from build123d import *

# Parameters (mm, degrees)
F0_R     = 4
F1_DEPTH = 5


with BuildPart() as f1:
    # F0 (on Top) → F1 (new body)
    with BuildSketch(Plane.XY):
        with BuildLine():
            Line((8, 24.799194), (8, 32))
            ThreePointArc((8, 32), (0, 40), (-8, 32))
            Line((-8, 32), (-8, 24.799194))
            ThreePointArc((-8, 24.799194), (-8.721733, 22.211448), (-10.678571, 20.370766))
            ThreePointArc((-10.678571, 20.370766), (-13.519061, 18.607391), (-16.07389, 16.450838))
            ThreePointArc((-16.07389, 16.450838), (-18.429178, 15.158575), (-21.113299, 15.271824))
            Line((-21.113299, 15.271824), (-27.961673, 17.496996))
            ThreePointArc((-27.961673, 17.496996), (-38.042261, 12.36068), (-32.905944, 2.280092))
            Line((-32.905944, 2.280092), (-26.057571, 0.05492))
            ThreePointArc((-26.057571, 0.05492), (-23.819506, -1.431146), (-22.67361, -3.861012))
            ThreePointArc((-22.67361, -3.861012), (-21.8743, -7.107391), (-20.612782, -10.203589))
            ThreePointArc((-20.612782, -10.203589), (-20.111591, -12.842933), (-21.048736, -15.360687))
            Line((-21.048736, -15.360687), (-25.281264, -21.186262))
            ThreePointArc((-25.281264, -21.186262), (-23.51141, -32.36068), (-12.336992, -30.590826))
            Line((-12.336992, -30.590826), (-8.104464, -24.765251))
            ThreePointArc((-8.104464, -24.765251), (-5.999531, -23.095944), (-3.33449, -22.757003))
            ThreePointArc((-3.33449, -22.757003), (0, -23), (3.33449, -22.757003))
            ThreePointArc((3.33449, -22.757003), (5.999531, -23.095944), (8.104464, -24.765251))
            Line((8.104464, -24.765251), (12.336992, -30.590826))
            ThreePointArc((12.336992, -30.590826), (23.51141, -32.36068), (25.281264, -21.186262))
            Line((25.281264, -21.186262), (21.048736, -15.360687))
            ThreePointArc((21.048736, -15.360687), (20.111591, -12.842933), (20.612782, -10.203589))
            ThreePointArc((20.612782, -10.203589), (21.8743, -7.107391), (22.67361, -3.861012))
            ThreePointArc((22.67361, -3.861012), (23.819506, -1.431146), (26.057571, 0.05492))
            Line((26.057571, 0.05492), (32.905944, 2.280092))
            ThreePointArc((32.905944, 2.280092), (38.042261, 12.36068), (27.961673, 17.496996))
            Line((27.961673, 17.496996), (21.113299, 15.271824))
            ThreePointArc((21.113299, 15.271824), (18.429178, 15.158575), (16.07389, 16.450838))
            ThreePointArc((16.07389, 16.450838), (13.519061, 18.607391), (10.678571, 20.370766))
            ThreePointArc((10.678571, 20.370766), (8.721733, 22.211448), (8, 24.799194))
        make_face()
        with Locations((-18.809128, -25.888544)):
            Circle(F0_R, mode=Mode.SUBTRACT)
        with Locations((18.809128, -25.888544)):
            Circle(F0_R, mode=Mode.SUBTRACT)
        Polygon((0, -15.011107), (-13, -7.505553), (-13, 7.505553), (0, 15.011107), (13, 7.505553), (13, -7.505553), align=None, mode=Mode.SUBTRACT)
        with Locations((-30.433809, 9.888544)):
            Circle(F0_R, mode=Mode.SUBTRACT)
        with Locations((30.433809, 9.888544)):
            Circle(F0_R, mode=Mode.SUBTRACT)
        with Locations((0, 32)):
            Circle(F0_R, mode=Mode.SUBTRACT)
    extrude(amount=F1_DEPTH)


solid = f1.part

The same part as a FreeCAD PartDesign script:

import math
import FreeCAD as App
import Part
import Sketcher

doc = App.newDocument("Part")
params = doc.addObject("Spreadsheet::Sheet", "Params")
for row, (alias, value) in enumerate([
    ("sketch1_diameter", "8 mm"),
    ("sketch1_diameter2", "8 mm"),
    ("sketch1_diameter3", "8 mm"),
    ("sketch1_diameter4", "8 mm"),
    ("sketch1_diameter5", "8 mm"),
    ("pad1_length", "5 mm"),
], start=1):
    params.set(f"A{row}", alias)
    params.set(f"B{row}", "=" + value)
    params.setAlias(f"B{row}", alias)

body = doc.addObject("PartDesign::Body", "Body")

sketch1 = body.newObject("Sketcher::SketchObject", "Sketch")
sketch1.AttachmentSupport = (doc.getObject("XY_Plane"), [""])
sketch1.MapMode = "FlatFace"
sketch1.addGeometry([
    Part.LineSegment(App.Vector(8, 24.799194, 0), App.Vector(8, 32, 0)),
    Part.ArcOfCircle(Part.Circle(App.Vector(0, 32, 0), App.Vector(0, 0, 1), 8), math.radians(0), math.radians(180)),
    Part.LineSegment(App.Vector(-8, 32, 0), App.Vector(-8, 24.799194, 0)),
    Part.ArcOfCircle(Part.Circle(App.Vector(-13.000004, 24.799195, 0), App.Vector(0, 0, 1), 5.000004), math.radians(-62.335964), math.radians(-0.000017)),
    Part.ArcOfCircle(Part.Circle(App.Vector(-0.000016, 0.000019, 0), App.Vector(0, 0, 1), 22.999976), math.radians(117.66399), math.radians(134.336)),
    Part.ArcOfCircle(Part.Circle(App.Vector(-19.568214, 20.027104, 0), App.Vector(0, 0, 1), 4.999997), math.radians(-108.000015), math.radians(-45.66398)),
    Part.LineSegment(App.Vector(-21.113299, 15.271824, 0), App.Vector(-27.961673, 17.496996, 0)),
    Part.ArcOfCircle(Part.Circle(App.Vector(-30.433809, 9.888544, 0), App.Vector(0, 0, 1), 8), math.radians(71.999998), math.radians(252.000007)),
    Part.LineSegment(App.Vector(-32.905944, 2.280092, 0), App.Vector(-26.057571, 0.05492, 0)),
    Part.ArcOfCircle(Part.Circle(App.Vector(-27.602656, -4.700363, 0), App.Vector(0, 0, 1), 5.000001), math.radians(9.664013), math.radians(71.999999)),
    Part.ArcOfCircle(Part.Circle(App.Vector(0, -0.000001, 0), App.Vector(0, 0, 1), 23), math.radians(-170.335997), math.radians(-153.664006)),
    Part.ArcOfCircle(Part.Circle(App.Vector(-25.093819, -12.421761, 0), App.Vector(0, 0, 1), 4.999998), math.radians(-36.000011), math.radians(26.336018)),
    Part.LineSegment(App.Vector(-21.048736, -15.360687, 0), App.Vector(-25.281264, -21.186262, 0)),
    Part.ArcOfCircle(Part.Circle(App.Vector(-18.809128, -25.888544, 0), App.Vector(0, 0, 1), 8), math.radians(144), math.radians(324)),
    Part.LineSegment(App.Vector(-12.336992, -30.590826, 0), App.Vector(-8.104464, -24.765251, 0)),
    Part.ArcOfCircle(Part.Circle(App.Vector(-4.059381, -27.704174, 0), App.Vector(0, 0, 1), 4.999997), math.radians(81.663983), math.radians(144.000017)),
    Part.ArcOfCircle(Part.Circle(App.Vector(0, 0.000019, 0), App.Vector(0, 0, 1), 23.000019), math.radians(-98.335988), math.radians(-81.664012)),
    Part.ArcOfCircle(Part.Circle(App.Vector(4.059381, -27.704174, 0), App.Vector(0, 0, 1), 4.999997), math.radians(35.999983), math.radians(98.336017)),
    Part.LineSegment(App.Vector(8.104464, -24.765251, 0), App.Vector(12.336992, -30.590826, 0)),
    Part.ArcOfCircle(Part.Circle(App.Vector(18.809128, -25.888544, 0), App.Vector(0, 0, 1), 8), math.radians(-144), math.radians(36)),
    Part.LineSegment(App.Vector(25.281264, -21.186262, 0), App.Vector(21.048736, -15.360687, 0)),
    Part.ArcOfCircle(Part.Circle(App.Vector(25.093819, -12.421761, 0), App.Vector(0, 0, 1), 4.999998), math.radians(153.663982), math.radians(216.000011)),
    Part.ArcOfCircle(Part.Circle(App.Vector(0, -0.000001, 0), App.Vector(0, 0, 1), 23), math.radians(-26.335994), math.radians(-9.664003)),
    Part.ArcOfCircle(Part.Circle(App.Vector(27.602656, -4.700363, 0), App.Vector(0, 0, 1), 5.000001), math.radians(108.000001), math.radians(170.335987)),
    Part.LineSegment(App.Vector(26.057571, 0.05492, 0), App.Vector(32.905944, 2.280092, 0)),
    Part.ArcOfCircle(Part.Circle(App.Vector(30.433809, 9.888544, 0), App.Vector(0, 0, 1), 8), math.radians(-72.000007), math.radians(108.000002)),
    Part.LineSegment(App.Vector(27.961673, 17.496996, 0), App.Vector(21.113299, 15.271824, 0)),
    Part.ArcOfCircle(Part.Circle(App.Vector(19.568214, 20.027104, 0), App.Vector(0, 0, 1), 4.999997), math.radians(-134.33602), math.radians(-71.999985)),
    Part.ArcOfCircle(Part.Circle(App.Vector(0.000016, 0.000019, 0), App.Vector(0, 0, 1), 22.999976), math.radians(45.664), math.radians(62.33601)),
    Part.ArcOfCircle(Part.Circle(App.Vector(13.000004, 24.799195, 0), App.Vector(0, 0, 1), 5.000004), math.radians(-179.999983), math.radians(-117.664036)),
    Part.Circle(App.Vector(-18.809128, -25.888544, 0), App.Vector(0, 0, 1), 4),
    Part.Circle(App.Vector(18.809128, -25.888544, 0), App.Vector(0, 0, 1), 4),
    Part.LineSegment(App.Vector(13, -7.505553, 0), App.Vector(0, -15.011107, 0)),
    Part.LineSegment(App.Vector(0, -15.011107, 0), App.Vector(-13, -7.505553, 0)),
    Part.LineSegment(App.Vector(-13, -7.505553, 0), App.Vector(-13, 7.505553, 0)),
    Part.LineSegment(App.Vector(-13, 7.505553, 0), App.Vector(0, 15.011107, 0)),
    Part.LineSegment(App.Vector(0, 15.011107, 0), App.Vector(13, 7.505553, 0)),
    Part.LineSegment(App.Vector(13, 7.505553, 0), App.Vector(13, -7.505553, 0)),
    Part.Circle(App.Vector(-30.433809, 9.888544, 0), App.Vector(0, 0, 1), 4),
    Part.Circle(App.Vector(30.433809, 9.888544, 0), App.Vector(0, 0, 1), 4),
    Part.Circle(App.Vector(0, 32, 0), App.Vector(0, 0, 1), 4),
], False)
sketch1.addConstraint([
    Sketcher.Constraint("Coincident", 0, 2, 1, 1),
    Sketcher.Constraint("Coincident", 1, 2, 2, 1),
    Sketcher.Constraint("Coincident", 2, 2, 3, 2),
    Sketcher.Constraint("Coincident", 3, 1, 4, 1),
    Sketcher.Constraint("Coincident", 4, 2, 5, 2),
    Sketcher.Constraint("Coincident", 5, 1, 6, 1),
    Sketcher.Constraint("Coincident", 6, 2, 7, 1),
    Sketcher.Constraint("Coincident", 7, 2, 8, 1),
    Sketcher.Constraint("Coincident", 8, 2, 9, 2),
    Sketcher.Constraint("Coincident", 9, 1, 10, 1),
    Sketcher.Constraint("Coincident", 10, 2, 11, 2),
    Sketcher.Constraint("Coincident", 11, 1, 12, 1),
    Sketcher.Constraint("Coincident", 12, 2, 13, 1),
    Sketcher.Constraint("Coincident", 13, 2, 14, 1),
    Sketcher.Constraint("Coincident", 14, 2, 15, 2),
    Sketcher.Constraint("Coincident", 15, 1, 16, 1),
    Sketcher.Constraint("Coincident", 16, 2, 17, 2),
    Sketcher.Constraint("Coincident", 17, 1, 18, 1),
    Sketcher.Constraint("Coincident", 18, 2, 19, 1),
    Sketcher.Constraint("Coincident", 19, 2, 20, 1),
    Sketcher.Constraint("Coincident", 20, 2, 21, 2),
    Sketcher.Constraint("Coincident", 21, 1, 22, 1),
    Sketcher.Constraint("Coincident", 22, 2, 23, 2),
    Sketcher.Constraint("Coincident", 23, 1, 24, 1),
    Sketcher.Constraint("Coincident", 24, 2, 25, 1),
    Sketcher.Constraint("Coincident", 25, 2, 26, 1),
    Sketcher.Constraint("Coincident", 26, 2, 27, 2),
    Sketcher.Constraint("Coincident", 27, 1, 28, 1),
    Sketcher.Constraint("Coincident", 28, 2, 29, 2),
    Sketcher.Constraint("Coincident", 29, 1, 0, 1),
    Sketcher.Constraint("Coincident", 32, 2, 33, 1),
    Sketcher.Constraint("Coincident", 33, 2, 34, 1),
    Sketcher.Constraint("Coincident", 34, 2, 35, 1),
    Sketcher.Constraint("Coincident", 35, 2, 36, 1),
    Sketcher.Constraint("Coincident", 36, 2, 37, 1),
    Sketcher.Constraint("Coincident", 37, 2, 32, 1),
    Sketcher.Constraint("Vertical", 0),
    Sketcher.Constraint("Vertical", 2),
    Sketcher.Constraint("Vertical", 34),
    Sketcher.Constraint("Vertical", 37),
    Sketcher.Constraint("Coincident", 10, 3, -1, 1),
    Sketcher.Constraint("Coincident", 22, 3, -1, 1),
    Sketcher.Constraint("Coincident", 30, 3, 13, 3),
    Sketcher.Constraint("Coincident", 31, 3, 19, 3),
    Sketcher.Constraint("Coincident", 38, 3, 7, 3),
    Sketcher.Constraint("Coincident", 39, 3, 25, 3),
    Sketcher.Constraint("Coincident", 40, 3, 1, 3),
    Sketcher.Constraint("PointOnObject", 1, 3, -2),
    Sketcher.Constraint("PointOnObject", 16, 3, -2),
    Sketcher.Constraint("PointOnObject", 32, 2, -2),
    Sketcher.Constraint("PointOnObject", 35, 2, -2),
    Sketcher.Constraint("Diameter", 30, 8.0),
    Sketcher.Constraint("Diameter", 31, 8.0),
    Sketcher.Constraint("Diameter", 38, 8.0),
    Sketcher.Constraint("Diameter", 39, 8.0),
    Sketcher.Constraint("Diameter", 40, 8.0),
    Sketcher.Constraint("Radius", 1, 8.0),
    Sketcher.Constraint("Radius", 7, 8.0),
    Sketcher.Constraint("Radius", 9, 5.000001),
    Sketcher.Constraint("Radius", 10, 23.0),
    Sketcher.Constraint("Radius", 13, 8.0),
    Sketcher.Constraint("Radius", 19, 8.0),
    Sketcher.Constraint("Radius", 22, 23.0),
    Sketcher.Constraint("Radius", 23, 5.000001),
    Sketcher.Constraint("Radius", 25, 8.0),
    Sketcher.Constraint("DistanceY", -1, 1, 1, 3, 32.0),
    Sketcher.Constraint("DistanceY", -1, 1, 0, 2, 32.0),
    Sketcher.Constraint("DistanceY", -1, 1, 1, 2, 32.0),
    Sketcher.Constraint("DistanceX", 33, 2, -1, 1, 13.0),
    Sketcher.Constraint("DistanceX", -1, 1, 36, 2, 13.0),
    Sketcher.Constraint("Radius", 16, 23.000019),
    Sketcher.Constraint("Radius", 3, 5.000004),
    Sketcher.Constraint("Radius", 4, 22.999976),
    Sketcher.Constraint("Radius", 5, 4.999997),
    Sketcher.Constraint("Radius", 11, 4.999998),
    Sketcher.Constraint("Radius", 15, 4.999997),
    Sketcher.Constraint("Radius", 17, 4.999997),
    Sketcher.Constraint("Radius", 21, 4.999998),
    Sketcher.Constraint("Radius", 27, 4.999997),
    Sketcher.Constraint("Radius", 28, 22.999976),
    Sketcher.Constraint("Radius", 29, 5.000004),
    Sketcher.Constraint("DistanceX", 5, 1, -1, 1, 21.113299),
    Sketcher.Constraint("DistanceX", -1, 1, 26, 2, 21.113299),
    Sketcher.Constraint("DistanceY", 0, 1, 0, 2, 7.200806),
    Sketcher.Constraint("DistanceY", 2, 2, 2, 1, 7.200806),
    Sketcher.Constraint("DistanceY", 34, 1, 34, 2, 15.011106),
    Sketcher.Constraint("DistanceY", 37, 2, 37, 1, 15.011106),
    Sketcher.Constraint("DistanceX", 7, 3, -1, 1, 30.433809),
    Sketcher.Constraint("DistanceX", 11, 3, -1, 1, 25.093819),
    Sketcher.Constraint("DistanceX", 13, 3, -1, 1, 18.809128),
    Sketcher.Constraint("DistanceX", 15, 3, -1, 1, 4.059381),
    Sketcher.Constraint("DistanceX", -1, 1, 17, 3, 4.059381),
    Sketcher.Constraint("DistanceX", -1, 1, 19, 3, 18.809128),
    Sketcher.Constraint("DistanceX", -1, 1, 21, 3, 25.093819),
    Sketcher.Constraint("DistanceX", -1, 1, 25, 3, 30.433809),
    Sketcher.Constraint("DistanceX", 3, 1, -1, 1, 10.678571),
    Sketcher.Constraint("DistanceX", 4, 2, -1, 1, 16.07389),
    Sketcher.Constraint("DistanceX", 8, 2, -1, 1, 26.057571),
    Sketcher.Constraint("DistanceY", -1, 1, 8, 2, 0.05492),
    Sketcher.Constraint("DistanceX", 9, 1, -1, 1, 22.67361),
    Sketcher.Constraint("DistanceX", 10, 2, -1, 1, 20.612782),
    Sketcher.Constraint("DistanceY", 12, 2, -1, 1, 21.186262),
    Sketcher.Constraint("DistanceX", 13, 2, -1, 1, 12.336992),
    Sketcher.Constraint("DistanceY", 14, 2, -1, 1, 24.765251),
    Sketcher.Constraint("DistanceX", 15, 1, -1, 1, 3.33449),
    Sketcher.Constraint("DistanceX", -1, 1, 16, 2, 3.33449),
    Sketcher.Constraint("DistanceY", 17, 1, -1, 1, 24.765251),
    Sketcher.Constraint("DistanceY", 19, 2, -1, 1, 21.186262),
    Sketcher.Constraint("DistanceX", -1, 1, 21, 1, 20.612782),
    Sketcher.Constraint("DistanceX", -1, 1, 22, 2, 22.67361),
    Sketcher.Constraint("DistanceX", -1, 1, 23, 1, 26.057571),
    Sketcher.Constraint("DistanceY", -1, 1, 23, 1, 0.05492),
    Sketcher.Constraint("DistanceY", -1, 1, 24, 2, 2.280092),
    Sketcher.Constraint("DistanceX", -1, 1, 27, 1, 16.07389),
    Sketcher.Constraint("DistanceY", -1, 1, 27, 1, 16.450838),
    Sketcher.Constraint("DistanceX", -1, 1, 28, 2, 10.678571),
    Sketcher.Constraint("Distance", 6, 7.200807),
    Sketcher.Constraint("Distance", 8, 7.200806),
    Sketcher.Constraint("Distance", 12, 7.200807),
    Sketcher.Constraint("Distance", 14, 7.200807),
    Sketcher.Constraint("Distance", 18, 7.200807),
    Sketcher.Constraint("Distance", 20, 7.200807),
    Sketcher.Constraint("Distance", 24, 7.200806),
    Sketcher.Constraint("Distance", 26, 7.200807),
    Sketcher.Constraint("Distance", 32, 15.011107),
    Sketcher.Constraint("Distance", 33, 15.011107),
    Sketcher.Constraint("Distance", 35, 15.011107),
    Sketcher.Constraint("DistanceY", -1, 1, 3, 3, 24.799195),
    Sketcher.Constraint("DistanceX", 5, 3, -1, 1, 19.568214),
    Sketcher.Constraint("DistanceY", -1, 1, 5, 3, 20.027104),
    Sketcher.Constraint("DistanceY", -1, 1, 7, 3, 9.888544),
    Sketcher.Constraint("DistanceY", 13, 3, -1, 1, 25.888544),
    Sketcher.Constraint("DistanceY", 19, 3, -1, 1, 25.888544),
    Sketcher.Constraint("DistanceX", -1, 1, 27, 3, 19.568214),
    Sketcher.Constraint("DistanceY", -1, 1, 29, 3, 24.799195),
    Sketcher.Constraint("DistanceY", 32, 2, -1, 1, 15.011107),
])
sketch1.setExpression("Constraints[51]", "Params.sketch1_diameter")
sketch1.setExpression("Constraints[52]", "Params.sketch1_diameter2")
sketch1.setExpression("Constraints[53]", "Params.sketch1_diameter3")
sketch1.setExpression("Constraints[54]", "Params.sketch1_diameter4")
sketch1.setExpression("Constraints[55]", "Params.sketch1_diameter5")
pad1 = body.newObject("PartDesign::Pad", "Pad")
pad1.Profile = sketch1
pad1.setExpression("Length", "Params.pad1_length")

doc.recompute()
